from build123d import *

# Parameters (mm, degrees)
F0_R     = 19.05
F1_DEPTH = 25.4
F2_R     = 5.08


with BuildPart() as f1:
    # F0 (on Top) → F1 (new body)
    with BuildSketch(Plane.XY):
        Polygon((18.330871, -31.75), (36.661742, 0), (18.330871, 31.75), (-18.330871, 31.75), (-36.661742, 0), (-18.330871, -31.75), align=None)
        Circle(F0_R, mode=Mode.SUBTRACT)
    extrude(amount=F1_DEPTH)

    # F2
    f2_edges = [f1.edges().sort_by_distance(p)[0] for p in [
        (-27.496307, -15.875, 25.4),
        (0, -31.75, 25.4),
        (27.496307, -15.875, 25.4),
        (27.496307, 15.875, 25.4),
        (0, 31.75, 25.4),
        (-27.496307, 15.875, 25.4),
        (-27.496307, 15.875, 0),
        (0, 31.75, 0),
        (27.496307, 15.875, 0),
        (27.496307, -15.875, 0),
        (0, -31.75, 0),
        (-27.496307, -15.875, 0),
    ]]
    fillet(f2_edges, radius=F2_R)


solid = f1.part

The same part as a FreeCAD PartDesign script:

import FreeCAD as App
import Part
import Sketcher

V = App.Vector
Q = App.Units.Quantity


def edges_at(feature, points):
    """Names of the edges that pass closest to the given points."""
    edges = feature.Shape.Edges
    near = lambda p: min(range(len(edges)), key=lambda i: edges[i].distToShape(Part.Vertex(*p))[0])
    return sorted({f"Edge{near(p) + 1}" for p in points})


def add_polygon(sketch, points):
    """Adds a closed chain of lines whose ends are joined by coincident constraints."""
    first, n = sketch.GeometryCount, len(points)
    for a, b in zip(points, points[1:] + points[:1]):
        sketch.addGeometry(Part.LineSegment(App.Vector(*a, 0), App.Vector(*b, 0)), False)
    for i in range(n):
        sketch.addConstraint(Sketcher.Constraint("Coincident", first + i, 2, first + (i + 1) % n, 1))

doc = App.newDocument("Part")
body = doc.addObject("PartDesign::Body", "Body")

# Sketch on XY plane
sketch1 = body.newObject("Sketcher::SketchObject", "Sketch")
sketch1.AttachmentSupport = (doc.getObject("XY_Plane"), [""])
sketch1.MapMode = "FlatFace"
add_polygon(sketch1, [(18, -32), (37, 0), (18, 32), (-18, 32), (-37, 0), (-18, -32)])  # lines 0-5
sketch1.addGeometry(Part.Circle(V(0, 0, 0), V(0, 0, 1), 19), False)  # 6
sketch1.addConstraint(Sketcher.Constraint("Horizontal", 2))
sketch1.addConstraint(Sketcher.Constraint("Horizontal", 5))
sketch1.addConstraint(Sketcher.Constraint("Coincident", 6, 3, -1, 1))
sketch1.addConstraint(Sketcher.Constraint("Symmetric", 0, 2, 3, 2, -1, 1))
sketch1.addConstraint(Sketcher.Constraint("Symmetric", 1, 2, 4, 2, -1, 1))
sketch1.addConstraint(Sketcher.Constraint("PointOnObject", 0, 2, -1))
sketch1.addConstraint(Sketcher.Constraint("Parallel", 0, 3))
sketch1.addConstraint(Sketcher.Constraint("Vertical", 2, 2, 4, 2))
sketch1.addConstraint(Sketcher.Constraint("Diameter", 6, Q("1.5 in")))
sketch1.addConstraint(Sketcher.Constraint("Angle", 0, Q("60 deg")))
sketch1.addConstraint(Sketcher.Constraint("DistanceY", 4, 2, 2, 2, Q("2.5 in")))
sketch1.addConstraint(Sketcher.Constraint("DistanceX", 2, 2, 2, 1, Q("36.661742 mm")))
pad1 = body.newObject("PartDesign::Pad", "Pad")
pad1.Profile = sketch1
pad1.Length = Q("1 in")
doc.recompute()

fillet = body.newObject("PartDesign::Fillet", "Fillet")
fillet.Base = (pad1, edges_at(pad1, [
    (-27.496, -15.875, 25.4),
    (0, -31.75, 25.4),
    (27.496, -15.875, 25.4),
    (27.496, 15.875, 25.4),
    (0, 31.75, 25.4),
    (-27.496, 15.875, 25.4),
    (-27.496, 15.875, 0),
    (0, 31.75, 0),
    (27.496, 15.875, 0),
    (27.496, -15.875, 0),
    (0, -31.75, 0),
    (-27.496, -15.875, 0),
]))
fillet.Radius = Q("0.2 in")

doc.recompute()
